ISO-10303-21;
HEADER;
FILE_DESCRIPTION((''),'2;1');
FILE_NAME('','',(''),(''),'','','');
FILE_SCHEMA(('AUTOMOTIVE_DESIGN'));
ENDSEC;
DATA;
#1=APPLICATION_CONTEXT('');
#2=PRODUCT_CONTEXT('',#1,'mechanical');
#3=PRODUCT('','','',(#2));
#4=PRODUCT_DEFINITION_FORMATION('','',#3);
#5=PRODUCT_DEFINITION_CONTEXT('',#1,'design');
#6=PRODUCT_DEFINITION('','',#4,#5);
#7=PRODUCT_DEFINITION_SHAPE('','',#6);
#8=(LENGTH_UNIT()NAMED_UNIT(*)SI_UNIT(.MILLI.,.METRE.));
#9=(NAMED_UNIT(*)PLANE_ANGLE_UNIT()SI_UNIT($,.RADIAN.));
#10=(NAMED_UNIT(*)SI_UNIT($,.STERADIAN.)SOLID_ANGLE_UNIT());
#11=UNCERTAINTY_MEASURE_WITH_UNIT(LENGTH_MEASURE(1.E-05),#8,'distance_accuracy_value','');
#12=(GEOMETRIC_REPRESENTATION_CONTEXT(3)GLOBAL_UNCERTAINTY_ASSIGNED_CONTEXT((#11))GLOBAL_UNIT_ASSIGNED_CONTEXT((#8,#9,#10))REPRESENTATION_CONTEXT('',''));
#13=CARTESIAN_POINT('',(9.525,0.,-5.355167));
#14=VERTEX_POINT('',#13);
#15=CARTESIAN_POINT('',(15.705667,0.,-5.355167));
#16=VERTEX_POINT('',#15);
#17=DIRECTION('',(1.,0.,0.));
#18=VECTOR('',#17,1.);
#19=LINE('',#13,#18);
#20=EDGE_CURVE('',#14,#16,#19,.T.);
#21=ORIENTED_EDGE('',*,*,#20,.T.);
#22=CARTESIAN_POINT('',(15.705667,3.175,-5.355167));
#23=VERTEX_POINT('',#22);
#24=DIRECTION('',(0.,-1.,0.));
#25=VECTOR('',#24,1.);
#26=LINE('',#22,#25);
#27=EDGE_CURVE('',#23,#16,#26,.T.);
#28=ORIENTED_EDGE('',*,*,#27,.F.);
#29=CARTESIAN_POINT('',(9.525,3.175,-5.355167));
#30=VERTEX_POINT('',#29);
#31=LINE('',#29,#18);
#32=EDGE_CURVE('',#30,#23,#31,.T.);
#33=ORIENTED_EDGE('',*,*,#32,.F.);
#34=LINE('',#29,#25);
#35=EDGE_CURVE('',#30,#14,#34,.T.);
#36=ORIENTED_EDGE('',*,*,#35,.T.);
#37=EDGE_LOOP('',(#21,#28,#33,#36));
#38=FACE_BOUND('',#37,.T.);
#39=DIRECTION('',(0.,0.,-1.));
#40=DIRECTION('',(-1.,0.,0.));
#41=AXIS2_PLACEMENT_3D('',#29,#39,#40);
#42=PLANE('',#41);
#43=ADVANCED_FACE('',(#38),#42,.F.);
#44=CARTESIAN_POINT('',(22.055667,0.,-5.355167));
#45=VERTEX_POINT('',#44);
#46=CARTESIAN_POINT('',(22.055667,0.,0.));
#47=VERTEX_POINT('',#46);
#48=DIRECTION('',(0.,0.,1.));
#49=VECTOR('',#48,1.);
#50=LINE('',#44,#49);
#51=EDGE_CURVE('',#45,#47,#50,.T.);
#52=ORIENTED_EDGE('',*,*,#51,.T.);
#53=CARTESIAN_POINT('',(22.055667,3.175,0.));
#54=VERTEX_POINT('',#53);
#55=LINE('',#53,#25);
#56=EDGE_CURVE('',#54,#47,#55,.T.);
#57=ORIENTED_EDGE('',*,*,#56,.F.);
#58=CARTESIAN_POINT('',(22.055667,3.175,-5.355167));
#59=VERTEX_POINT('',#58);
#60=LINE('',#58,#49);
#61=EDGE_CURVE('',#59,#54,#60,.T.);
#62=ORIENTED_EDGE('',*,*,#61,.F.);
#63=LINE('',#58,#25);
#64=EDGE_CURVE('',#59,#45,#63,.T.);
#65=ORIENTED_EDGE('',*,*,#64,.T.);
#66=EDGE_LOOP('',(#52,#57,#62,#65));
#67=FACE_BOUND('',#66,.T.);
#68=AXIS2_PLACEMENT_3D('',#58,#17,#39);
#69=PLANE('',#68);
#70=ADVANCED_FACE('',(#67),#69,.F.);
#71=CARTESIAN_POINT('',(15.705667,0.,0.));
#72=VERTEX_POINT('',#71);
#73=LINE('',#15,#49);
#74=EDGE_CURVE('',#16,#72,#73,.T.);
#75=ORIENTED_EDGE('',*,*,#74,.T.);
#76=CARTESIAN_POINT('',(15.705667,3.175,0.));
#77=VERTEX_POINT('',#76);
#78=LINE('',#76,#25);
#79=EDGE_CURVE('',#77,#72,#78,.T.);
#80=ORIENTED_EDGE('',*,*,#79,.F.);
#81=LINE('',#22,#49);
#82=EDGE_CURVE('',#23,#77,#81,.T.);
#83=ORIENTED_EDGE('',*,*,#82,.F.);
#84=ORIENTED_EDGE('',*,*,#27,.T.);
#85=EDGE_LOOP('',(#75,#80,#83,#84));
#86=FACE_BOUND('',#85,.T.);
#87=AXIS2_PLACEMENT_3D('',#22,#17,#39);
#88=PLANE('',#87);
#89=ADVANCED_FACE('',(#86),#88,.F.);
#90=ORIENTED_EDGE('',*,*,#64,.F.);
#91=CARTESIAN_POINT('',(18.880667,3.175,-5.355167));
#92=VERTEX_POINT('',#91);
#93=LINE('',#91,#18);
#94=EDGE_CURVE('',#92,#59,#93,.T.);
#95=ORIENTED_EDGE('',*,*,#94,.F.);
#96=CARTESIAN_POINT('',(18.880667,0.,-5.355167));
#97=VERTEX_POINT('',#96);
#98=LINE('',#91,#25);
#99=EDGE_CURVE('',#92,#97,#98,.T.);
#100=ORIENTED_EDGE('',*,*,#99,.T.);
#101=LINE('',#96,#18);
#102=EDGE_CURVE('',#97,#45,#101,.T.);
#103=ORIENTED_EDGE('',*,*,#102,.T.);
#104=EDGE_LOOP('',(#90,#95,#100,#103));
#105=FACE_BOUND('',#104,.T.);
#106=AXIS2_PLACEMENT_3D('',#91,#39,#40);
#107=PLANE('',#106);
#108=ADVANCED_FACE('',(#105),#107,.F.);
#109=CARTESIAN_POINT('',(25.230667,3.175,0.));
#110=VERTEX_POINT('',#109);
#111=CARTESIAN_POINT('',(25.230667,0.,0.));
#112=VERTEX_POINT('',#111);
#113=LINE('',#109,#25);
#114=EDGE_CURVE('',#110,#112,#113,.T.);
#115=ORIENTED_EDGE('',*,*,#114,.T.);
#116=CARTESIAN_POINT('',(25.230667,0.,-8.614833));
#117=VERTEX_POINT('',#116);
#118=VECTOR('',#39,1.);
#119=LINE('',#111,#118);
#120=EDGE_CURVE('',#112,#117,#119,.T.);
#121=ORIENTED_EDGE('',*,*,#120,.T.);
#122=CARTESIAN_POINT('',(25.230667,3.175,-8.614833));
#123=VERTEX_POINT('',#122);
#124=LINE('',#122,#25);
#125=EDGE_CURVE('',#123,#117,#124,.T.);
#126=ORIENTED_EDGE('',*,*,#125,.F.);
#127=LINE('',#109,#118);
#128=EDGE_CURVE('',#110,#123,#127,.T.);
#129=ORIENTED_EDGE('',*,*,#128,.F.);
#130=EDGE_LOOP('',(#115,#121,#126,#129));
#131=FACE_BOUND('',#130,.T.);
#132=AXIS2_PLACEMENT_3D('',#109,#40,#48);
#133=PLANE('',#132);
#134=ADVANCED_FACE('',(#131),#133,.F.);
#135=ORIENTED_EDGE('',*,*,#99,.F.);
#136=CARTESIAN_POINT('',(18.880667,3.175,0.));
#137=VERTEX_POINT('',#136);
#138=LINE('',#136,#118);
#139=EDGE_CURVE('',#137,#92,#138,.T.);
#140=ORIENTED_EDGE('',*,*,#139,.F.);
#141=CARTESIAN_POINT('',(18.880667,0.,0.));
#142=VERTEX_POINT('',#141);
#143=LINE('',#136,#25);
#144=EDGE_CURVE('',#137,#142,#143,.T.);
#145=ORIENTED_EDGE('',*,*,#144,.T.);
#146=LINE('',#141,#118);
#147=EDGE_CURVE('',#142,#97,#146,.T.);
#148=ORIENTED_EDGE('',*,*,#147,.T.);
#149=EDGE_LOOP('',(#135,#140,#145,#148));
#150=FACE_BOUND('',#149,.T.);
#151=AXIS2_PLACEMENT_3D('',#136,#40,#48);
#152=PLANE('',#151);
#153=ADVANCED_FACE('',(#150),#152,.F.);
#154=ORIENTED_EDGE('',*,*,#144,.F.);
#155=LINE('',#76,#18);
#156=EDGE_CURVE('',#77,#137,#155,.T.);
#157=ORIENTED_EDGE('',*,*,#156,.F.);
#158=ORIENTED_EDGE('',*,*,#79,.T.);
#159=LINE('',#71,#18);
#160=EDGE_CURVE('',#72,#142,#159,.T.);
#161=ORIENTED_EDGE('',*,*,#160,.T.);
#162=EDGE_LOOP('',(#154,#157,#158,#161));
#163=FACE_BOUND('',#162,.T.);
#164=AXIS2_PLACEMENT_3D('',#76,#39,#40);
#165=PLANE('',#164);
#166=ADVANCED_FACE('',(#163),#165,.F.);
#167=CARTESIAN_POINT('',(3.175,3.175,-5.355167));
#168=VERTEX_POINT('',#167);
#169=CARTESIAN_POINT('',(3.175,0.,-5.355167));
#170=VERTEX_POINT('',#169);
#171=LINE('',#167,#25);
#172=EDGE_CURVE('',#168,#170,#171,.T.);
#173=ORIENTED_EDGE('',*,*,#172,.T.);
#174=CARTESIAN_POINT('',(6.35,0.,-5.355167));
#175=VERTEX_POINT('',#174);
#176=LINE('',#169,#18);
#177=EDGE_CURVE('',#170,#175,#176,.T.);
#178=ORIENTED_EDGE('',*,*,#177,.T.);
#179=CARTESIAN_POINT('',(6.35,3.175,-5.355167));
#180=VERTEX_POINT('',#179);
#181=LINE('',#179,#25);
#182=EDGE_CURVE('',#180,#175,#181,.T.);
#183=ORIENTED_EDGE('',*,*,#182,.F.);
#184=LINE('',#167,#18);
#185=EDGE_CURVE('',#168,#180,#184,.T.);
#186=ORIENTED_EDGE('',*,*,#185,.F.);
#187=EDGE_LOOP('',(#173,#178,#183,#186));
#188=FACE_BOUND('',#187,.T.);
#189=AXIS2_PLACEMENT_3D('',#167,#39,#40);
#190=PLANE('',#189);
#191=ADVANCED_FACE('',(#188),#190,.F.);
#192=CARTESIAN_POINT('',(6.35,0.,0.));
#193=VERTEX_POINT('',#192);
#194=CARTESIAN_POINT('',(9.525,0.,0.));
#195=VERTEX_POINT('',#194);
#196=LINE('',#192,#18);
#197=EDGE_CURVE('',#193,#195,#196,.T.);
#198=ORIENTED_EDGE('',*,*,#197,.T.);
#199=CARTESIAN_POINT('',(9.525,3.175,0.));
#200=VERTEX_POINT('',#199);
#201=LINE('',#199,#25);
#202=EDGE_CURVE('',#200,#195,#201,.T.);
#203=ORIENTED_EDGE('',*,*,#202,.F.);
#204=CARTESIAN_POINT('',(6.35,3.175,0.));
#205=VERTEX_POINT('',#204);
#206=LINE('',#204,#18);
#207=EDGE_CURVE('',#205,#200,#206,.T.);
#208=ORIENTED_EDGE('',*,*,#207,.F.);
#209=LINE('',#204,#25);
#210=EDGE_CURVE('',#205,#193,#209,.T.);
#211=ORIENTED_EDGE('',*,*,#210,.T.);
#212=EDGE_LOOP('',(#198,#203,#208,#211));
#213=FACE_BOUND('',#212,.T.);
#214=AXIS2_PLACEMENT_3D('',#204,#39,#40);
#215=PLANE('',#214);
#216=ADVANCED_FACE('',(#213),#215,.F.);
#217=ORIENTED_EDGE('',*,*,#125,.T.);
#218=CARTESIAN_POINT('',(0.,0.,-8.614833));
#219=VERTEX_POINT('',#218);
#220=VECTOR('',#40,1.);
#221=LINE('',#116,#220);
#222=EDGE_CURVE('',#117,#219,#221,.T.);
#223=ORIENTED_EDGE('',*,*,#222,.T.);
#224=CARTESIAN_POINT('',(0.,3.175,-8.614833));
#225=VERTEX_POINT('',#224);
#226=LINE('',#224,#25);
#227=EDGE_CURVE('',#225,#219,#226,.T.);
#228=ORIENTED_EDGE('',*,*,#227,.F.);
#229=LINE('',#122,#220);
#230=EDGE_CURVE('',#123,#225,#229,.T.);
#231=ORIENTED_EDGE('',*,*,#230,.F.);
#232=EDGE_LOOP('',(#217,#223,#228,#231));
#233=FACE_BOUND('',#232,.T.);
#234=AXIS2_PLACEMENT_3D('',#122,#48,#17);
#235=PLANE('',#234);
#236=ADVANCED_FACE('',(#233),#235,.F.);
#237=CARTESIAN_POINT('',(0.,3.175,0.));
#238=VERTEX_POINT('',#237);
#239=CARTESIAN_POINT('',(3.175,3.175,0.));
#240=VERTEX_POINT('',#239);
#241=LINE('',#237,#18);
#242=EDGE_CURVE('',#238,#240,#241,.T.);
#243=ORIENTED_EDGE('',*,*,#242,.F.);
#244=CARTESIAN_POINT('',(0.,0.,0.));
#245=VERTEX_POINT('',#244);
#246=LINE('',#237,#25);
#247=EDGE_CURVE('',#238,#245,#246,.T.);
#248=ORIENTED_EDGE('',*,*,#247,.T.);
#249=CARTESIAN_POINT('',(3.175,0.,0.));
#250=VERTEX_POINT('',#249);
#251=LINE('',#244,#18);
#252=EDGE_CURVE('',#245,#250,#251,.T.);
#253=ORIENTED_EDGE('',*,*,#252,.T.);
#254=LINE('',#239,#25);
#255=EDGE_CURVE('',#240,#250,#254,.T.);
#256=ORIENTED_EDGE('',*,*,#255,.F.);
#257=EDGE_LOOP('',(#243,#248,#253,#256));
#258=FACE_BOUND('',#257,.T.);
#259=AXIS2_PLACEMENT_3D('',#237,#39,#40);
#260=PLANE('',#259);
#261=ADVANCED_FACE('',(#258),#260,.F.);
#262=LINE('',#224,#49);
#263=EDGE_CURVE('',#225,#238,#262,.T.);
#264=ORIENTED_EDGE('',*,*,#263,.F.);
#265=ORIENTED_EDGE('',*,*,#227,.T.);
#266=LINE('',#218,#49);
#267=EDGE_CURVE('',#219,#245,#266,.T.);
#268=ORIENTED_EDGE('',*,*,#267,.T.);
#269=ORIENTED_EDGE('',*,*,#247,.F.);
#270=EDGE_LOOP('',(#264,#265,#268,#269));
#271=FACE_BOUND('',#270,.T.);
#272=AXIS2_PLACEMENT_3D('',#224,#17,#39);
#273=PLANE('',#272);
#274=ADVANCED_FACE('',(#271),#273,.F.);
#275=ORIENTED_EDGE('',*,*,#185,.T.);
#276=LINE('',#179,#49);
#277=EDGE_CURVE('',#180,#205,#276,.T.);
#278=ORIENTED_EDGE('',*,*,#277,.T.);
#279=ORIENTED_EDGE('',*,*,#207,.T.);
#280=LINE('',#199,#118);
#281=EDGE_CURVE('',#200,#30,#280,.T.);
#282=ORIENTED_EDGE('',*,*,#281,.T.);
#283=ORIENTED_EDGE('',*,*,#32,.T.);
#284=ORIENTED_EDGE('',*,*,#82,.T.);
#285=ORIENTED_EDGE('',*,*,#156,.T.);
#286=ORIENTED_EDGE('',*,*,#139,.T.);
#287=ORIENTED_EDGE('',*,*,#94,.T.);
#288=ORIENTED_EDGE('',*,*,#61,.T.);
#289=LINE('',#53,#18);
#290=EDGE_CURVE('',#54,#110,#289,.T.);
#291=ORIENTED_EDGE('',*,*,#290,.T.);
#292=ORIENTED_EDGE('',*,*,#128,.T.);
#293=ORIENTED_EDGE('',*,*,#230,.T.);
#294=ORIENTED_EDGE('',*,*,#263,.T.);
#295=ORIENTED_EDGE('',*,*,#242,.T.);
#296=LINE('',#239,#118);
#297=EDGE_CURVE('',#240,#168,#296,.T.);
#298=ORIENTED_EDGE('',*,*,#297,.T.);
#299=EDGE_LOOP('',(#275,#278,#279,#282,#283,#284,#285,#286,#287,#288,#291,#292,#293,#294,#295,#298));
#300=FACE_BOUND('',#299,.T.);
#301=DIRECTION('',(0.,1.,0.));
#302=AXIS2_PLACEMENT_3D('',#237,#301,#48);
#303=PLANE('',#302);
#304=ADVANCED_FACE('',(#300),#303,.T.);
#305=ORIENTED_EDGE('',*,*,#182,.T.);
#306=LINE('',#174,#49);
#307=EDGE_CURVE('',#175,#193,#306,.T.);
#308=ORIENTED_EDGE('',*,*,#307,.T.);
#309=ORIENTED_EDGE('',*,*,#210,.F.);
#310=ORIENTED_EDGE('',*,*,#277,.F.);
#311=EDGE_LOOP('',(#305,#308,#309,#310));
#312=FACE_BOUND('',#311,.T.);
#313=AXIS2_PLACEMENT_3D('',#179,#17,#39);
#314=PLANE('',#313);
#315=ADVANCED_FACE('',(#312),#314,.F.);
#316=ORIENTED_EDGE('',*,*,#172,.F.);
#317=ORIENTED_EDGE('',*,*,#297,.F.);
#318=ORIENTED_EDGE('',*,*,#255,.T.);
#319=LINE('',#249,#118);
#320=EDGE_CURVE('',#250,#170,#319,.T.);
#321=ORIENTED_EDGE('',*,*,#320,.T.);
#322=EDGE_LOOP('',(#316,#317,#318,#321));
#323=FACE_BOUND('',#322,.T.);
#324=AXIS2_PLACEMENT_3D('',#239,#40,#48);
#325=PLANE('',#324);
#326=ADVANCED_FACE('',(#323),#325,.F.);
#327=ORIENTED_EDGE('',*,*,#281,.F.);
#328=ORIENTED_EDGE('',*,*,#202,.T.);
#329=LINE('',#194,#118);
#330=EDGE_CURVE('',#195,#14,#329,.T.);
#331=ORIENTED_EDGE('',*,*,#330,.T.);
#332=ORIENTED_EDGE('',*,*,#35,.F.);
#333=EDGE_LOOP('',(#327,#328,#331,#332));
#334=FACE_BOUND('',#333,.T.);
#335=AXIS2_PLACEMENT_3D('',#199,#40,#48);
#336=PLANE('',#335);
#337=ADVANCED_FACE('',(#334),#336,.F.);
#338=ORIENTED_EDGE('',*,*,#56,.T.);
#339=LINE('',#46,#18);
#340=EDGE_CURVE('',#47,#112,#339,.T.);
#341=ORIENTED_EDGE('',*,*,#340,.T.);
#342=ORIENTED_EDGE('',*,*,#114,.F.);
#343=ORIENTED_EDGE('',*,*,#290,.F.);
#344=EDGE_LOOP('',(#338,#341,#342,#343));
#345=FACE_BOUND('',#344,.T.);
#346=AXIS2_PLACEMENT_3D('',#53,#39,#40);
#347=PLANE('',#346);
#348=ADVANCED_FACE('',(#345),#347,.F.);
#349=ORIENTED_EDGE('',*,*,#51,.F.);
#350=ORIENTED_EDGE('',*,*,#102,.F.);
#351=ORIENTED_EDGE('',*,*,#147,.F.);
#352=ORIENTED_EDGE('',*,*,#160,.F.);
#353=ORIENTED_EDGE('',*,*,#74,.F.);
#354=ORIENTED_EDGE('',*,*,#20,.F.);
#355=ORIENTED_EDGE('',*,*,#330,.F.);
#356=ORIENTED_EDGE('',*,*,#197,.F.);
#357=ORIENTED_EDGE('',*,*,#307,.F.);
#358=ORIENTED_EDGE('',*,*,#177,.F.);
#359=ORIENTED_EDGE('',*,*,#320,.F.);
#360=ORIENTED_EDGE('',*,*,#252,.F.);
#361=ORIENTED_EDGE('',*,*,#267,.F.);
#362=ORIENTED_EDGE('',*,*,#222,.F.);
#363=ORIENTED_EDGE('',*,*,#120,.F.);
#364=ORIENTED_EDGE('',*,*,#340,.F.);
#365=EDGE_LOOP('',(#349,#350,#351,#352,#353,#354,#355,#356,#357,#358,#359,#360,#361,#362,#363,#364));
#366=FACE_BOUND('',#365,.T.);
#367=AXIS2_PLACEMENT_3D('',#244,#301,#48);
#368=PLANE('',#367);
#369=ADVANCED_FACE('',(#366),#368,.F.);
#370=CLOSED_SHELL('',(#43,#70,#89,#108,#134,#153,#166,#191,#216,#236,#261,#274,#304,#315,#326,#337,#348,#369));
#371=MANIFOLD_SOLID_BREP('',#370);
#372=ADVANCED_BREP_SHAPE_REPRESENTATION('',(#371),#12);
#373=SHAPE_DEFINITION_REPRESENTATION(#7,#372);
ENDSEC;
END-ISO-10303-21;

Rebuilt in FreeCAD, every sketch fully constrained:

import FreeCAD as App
import Part
import Sketcher
from FreeCAD import Vector
Q = App.Units.Quantity


def add_polygon(sketch, points):
    """Adds a closed chain of lines whose ends are joined by coincident constraints."""
    first, n = sketch.GeometryCount, len(points)
    for a, b in zip(points, points[1:] + points[:1]):
        sketch.addGeometry(Part.LineSegment(App.Vector(*a, 0), App.Vector(*b, 0)), False)
    for i in range(n):
        sketch.addConstraint(Sketcher.Constraint("Coincident", first + i, 2, first + (i + 1) % n, 1))

doc = App.newDocument("Part")
params = doc.addObject("Spreadsheet::Sheet", "Params")
for row, (alias, value) in enumerate([
    ("sketch1_width", "0.125 in"),
    ("pad1_length", "0.125 in"),
], start=1):
    params.set(f"A{row}", alias)
    params.set(f"B{row}", "=" + value)
    params.setAlias(f"B{row}", alias)

body = doc.addObject("PartDesign::Body", "Body")

sketch1 = body.newObject("Sketcher::SketchObject", "Sketch")
sketch1.AttachmentSupport = (doc.getObject("XZ_Plane"), [""])
sketch1.MapMode = "FlatFace"
add_polygon(sketch1, [(0, 0), (3.2, 0), (3.2, -5.4), (6.3, -5.4), (6.3, 0), (9.5, 0), (9.5, -5.4), (15.7, -5.4), (15.7, 0), (18.9, 0), (18.9, -5.4), (22.1, -5.4), (22.1, 0), (25.2, 0), (25.2, -8.6), (0, -8.6)])
sketch1.addConstraint(Sketcher.Constraint("Horizontal", 0))
sketch1.addConstraint(Sketcher.Constraint("Vertical", 1))
sketch1.addConstraint(Sketcher.Constraint("Horizontal", 2))
sketch1.addConstraint(Sketcher.Constraint("Vertical", 3))
sketch1.addConstraint(Sketcher.Constraint("Horizontal", 4))
sketch1.addConstraint(Sketcher.Constraint("Vertical", 5))
sketch1.addConstraint(Sketcher.Constraint("Horizontal", 6))
sketch1.addConstraint(Sketcher.Constraint("Vertical", 7))
sketch1.addConstraint(Sketcher.Constraint("Horizontal", 8))
sketch1.addConstraint(Sketcher.Constraint("Vertical", 9))
sketch1.addConstraint(Sketcher.Constraint("Horizontal", 10))
sketch1.addConstraint(Sketcher.Constraint("Vertical", 11))
sketch1.addConstraint(Sketcher.Constraint("Horizontal", 12))
sketch1.addConstraint(Sketcher.Constraint("Vertical", 13))
sketch1.addConstraint(Sketcher.Constraint("Horizontal", 14))
sketch1.addConstraint(Sketcher.Constraint("Vertical", 15))
sketch1.addConstraint(Sketcher.Constraint("Coincident", 15, 2, -1, 1))
sketch1.addConstraint(Sketcher.Constraint("PointOnObject", 3, 2, -1))
sketch1.addConstraint(Sketcher.Constraint("PointOnObject", 7, 2, -1))
sketch1.addConstraint(Sketcher.Constraint("PointOnObject", 11, 2, -1))
sketch1.addConstraint(Sketcher.Constraint("Horizontal", 2, 2, 5, 2))
sketch1.addConstraint(Sketcher.Constraint("Horizontal", 6, 2, 9, 2))
sketch1.addConstraint(Sketcher.Constraint("Equal", 0, 2))
sketch1.addConstraint(Sketcher.Constraint("Equal", 2, 4))
sketch1.addConstraint(Sketcher.Constraint("Equal", 4, 8))
sketch1.addConstraint(Sketcher.Constraint("Equal", 8, 10))
sketch1.addConstraint(Sketcher.Constraint("Equal", 10, 12))
sketch1.addConstraint(Sketcher.Constraint("DistanceX", 0, 1, 0, 2, Q("0.125 in")))
sketch1.addConstraint(Sketcher.Constraint("DistanceX", 6, 1, 6, 2, 6.180667))
sketch1.addConstraint(Sketcher.Constraint("DistanceY", 1, 2, 1, 1, 5.355167))
sketch1.addConstraint(Sketcher.Constraint("DistanceY", 13, 2, 13, 1, 8.614833))
sketch1.setExpression("Constraints[43]", "Params.sketch1_width")
pad1 = body.newObject("PartDesign::Pad", "Pad")
pad1.Profile = sketch1
pad1.setExpression("Length", "Params.pad1_length")
pad1.Reversed = True

doc.recompute()
